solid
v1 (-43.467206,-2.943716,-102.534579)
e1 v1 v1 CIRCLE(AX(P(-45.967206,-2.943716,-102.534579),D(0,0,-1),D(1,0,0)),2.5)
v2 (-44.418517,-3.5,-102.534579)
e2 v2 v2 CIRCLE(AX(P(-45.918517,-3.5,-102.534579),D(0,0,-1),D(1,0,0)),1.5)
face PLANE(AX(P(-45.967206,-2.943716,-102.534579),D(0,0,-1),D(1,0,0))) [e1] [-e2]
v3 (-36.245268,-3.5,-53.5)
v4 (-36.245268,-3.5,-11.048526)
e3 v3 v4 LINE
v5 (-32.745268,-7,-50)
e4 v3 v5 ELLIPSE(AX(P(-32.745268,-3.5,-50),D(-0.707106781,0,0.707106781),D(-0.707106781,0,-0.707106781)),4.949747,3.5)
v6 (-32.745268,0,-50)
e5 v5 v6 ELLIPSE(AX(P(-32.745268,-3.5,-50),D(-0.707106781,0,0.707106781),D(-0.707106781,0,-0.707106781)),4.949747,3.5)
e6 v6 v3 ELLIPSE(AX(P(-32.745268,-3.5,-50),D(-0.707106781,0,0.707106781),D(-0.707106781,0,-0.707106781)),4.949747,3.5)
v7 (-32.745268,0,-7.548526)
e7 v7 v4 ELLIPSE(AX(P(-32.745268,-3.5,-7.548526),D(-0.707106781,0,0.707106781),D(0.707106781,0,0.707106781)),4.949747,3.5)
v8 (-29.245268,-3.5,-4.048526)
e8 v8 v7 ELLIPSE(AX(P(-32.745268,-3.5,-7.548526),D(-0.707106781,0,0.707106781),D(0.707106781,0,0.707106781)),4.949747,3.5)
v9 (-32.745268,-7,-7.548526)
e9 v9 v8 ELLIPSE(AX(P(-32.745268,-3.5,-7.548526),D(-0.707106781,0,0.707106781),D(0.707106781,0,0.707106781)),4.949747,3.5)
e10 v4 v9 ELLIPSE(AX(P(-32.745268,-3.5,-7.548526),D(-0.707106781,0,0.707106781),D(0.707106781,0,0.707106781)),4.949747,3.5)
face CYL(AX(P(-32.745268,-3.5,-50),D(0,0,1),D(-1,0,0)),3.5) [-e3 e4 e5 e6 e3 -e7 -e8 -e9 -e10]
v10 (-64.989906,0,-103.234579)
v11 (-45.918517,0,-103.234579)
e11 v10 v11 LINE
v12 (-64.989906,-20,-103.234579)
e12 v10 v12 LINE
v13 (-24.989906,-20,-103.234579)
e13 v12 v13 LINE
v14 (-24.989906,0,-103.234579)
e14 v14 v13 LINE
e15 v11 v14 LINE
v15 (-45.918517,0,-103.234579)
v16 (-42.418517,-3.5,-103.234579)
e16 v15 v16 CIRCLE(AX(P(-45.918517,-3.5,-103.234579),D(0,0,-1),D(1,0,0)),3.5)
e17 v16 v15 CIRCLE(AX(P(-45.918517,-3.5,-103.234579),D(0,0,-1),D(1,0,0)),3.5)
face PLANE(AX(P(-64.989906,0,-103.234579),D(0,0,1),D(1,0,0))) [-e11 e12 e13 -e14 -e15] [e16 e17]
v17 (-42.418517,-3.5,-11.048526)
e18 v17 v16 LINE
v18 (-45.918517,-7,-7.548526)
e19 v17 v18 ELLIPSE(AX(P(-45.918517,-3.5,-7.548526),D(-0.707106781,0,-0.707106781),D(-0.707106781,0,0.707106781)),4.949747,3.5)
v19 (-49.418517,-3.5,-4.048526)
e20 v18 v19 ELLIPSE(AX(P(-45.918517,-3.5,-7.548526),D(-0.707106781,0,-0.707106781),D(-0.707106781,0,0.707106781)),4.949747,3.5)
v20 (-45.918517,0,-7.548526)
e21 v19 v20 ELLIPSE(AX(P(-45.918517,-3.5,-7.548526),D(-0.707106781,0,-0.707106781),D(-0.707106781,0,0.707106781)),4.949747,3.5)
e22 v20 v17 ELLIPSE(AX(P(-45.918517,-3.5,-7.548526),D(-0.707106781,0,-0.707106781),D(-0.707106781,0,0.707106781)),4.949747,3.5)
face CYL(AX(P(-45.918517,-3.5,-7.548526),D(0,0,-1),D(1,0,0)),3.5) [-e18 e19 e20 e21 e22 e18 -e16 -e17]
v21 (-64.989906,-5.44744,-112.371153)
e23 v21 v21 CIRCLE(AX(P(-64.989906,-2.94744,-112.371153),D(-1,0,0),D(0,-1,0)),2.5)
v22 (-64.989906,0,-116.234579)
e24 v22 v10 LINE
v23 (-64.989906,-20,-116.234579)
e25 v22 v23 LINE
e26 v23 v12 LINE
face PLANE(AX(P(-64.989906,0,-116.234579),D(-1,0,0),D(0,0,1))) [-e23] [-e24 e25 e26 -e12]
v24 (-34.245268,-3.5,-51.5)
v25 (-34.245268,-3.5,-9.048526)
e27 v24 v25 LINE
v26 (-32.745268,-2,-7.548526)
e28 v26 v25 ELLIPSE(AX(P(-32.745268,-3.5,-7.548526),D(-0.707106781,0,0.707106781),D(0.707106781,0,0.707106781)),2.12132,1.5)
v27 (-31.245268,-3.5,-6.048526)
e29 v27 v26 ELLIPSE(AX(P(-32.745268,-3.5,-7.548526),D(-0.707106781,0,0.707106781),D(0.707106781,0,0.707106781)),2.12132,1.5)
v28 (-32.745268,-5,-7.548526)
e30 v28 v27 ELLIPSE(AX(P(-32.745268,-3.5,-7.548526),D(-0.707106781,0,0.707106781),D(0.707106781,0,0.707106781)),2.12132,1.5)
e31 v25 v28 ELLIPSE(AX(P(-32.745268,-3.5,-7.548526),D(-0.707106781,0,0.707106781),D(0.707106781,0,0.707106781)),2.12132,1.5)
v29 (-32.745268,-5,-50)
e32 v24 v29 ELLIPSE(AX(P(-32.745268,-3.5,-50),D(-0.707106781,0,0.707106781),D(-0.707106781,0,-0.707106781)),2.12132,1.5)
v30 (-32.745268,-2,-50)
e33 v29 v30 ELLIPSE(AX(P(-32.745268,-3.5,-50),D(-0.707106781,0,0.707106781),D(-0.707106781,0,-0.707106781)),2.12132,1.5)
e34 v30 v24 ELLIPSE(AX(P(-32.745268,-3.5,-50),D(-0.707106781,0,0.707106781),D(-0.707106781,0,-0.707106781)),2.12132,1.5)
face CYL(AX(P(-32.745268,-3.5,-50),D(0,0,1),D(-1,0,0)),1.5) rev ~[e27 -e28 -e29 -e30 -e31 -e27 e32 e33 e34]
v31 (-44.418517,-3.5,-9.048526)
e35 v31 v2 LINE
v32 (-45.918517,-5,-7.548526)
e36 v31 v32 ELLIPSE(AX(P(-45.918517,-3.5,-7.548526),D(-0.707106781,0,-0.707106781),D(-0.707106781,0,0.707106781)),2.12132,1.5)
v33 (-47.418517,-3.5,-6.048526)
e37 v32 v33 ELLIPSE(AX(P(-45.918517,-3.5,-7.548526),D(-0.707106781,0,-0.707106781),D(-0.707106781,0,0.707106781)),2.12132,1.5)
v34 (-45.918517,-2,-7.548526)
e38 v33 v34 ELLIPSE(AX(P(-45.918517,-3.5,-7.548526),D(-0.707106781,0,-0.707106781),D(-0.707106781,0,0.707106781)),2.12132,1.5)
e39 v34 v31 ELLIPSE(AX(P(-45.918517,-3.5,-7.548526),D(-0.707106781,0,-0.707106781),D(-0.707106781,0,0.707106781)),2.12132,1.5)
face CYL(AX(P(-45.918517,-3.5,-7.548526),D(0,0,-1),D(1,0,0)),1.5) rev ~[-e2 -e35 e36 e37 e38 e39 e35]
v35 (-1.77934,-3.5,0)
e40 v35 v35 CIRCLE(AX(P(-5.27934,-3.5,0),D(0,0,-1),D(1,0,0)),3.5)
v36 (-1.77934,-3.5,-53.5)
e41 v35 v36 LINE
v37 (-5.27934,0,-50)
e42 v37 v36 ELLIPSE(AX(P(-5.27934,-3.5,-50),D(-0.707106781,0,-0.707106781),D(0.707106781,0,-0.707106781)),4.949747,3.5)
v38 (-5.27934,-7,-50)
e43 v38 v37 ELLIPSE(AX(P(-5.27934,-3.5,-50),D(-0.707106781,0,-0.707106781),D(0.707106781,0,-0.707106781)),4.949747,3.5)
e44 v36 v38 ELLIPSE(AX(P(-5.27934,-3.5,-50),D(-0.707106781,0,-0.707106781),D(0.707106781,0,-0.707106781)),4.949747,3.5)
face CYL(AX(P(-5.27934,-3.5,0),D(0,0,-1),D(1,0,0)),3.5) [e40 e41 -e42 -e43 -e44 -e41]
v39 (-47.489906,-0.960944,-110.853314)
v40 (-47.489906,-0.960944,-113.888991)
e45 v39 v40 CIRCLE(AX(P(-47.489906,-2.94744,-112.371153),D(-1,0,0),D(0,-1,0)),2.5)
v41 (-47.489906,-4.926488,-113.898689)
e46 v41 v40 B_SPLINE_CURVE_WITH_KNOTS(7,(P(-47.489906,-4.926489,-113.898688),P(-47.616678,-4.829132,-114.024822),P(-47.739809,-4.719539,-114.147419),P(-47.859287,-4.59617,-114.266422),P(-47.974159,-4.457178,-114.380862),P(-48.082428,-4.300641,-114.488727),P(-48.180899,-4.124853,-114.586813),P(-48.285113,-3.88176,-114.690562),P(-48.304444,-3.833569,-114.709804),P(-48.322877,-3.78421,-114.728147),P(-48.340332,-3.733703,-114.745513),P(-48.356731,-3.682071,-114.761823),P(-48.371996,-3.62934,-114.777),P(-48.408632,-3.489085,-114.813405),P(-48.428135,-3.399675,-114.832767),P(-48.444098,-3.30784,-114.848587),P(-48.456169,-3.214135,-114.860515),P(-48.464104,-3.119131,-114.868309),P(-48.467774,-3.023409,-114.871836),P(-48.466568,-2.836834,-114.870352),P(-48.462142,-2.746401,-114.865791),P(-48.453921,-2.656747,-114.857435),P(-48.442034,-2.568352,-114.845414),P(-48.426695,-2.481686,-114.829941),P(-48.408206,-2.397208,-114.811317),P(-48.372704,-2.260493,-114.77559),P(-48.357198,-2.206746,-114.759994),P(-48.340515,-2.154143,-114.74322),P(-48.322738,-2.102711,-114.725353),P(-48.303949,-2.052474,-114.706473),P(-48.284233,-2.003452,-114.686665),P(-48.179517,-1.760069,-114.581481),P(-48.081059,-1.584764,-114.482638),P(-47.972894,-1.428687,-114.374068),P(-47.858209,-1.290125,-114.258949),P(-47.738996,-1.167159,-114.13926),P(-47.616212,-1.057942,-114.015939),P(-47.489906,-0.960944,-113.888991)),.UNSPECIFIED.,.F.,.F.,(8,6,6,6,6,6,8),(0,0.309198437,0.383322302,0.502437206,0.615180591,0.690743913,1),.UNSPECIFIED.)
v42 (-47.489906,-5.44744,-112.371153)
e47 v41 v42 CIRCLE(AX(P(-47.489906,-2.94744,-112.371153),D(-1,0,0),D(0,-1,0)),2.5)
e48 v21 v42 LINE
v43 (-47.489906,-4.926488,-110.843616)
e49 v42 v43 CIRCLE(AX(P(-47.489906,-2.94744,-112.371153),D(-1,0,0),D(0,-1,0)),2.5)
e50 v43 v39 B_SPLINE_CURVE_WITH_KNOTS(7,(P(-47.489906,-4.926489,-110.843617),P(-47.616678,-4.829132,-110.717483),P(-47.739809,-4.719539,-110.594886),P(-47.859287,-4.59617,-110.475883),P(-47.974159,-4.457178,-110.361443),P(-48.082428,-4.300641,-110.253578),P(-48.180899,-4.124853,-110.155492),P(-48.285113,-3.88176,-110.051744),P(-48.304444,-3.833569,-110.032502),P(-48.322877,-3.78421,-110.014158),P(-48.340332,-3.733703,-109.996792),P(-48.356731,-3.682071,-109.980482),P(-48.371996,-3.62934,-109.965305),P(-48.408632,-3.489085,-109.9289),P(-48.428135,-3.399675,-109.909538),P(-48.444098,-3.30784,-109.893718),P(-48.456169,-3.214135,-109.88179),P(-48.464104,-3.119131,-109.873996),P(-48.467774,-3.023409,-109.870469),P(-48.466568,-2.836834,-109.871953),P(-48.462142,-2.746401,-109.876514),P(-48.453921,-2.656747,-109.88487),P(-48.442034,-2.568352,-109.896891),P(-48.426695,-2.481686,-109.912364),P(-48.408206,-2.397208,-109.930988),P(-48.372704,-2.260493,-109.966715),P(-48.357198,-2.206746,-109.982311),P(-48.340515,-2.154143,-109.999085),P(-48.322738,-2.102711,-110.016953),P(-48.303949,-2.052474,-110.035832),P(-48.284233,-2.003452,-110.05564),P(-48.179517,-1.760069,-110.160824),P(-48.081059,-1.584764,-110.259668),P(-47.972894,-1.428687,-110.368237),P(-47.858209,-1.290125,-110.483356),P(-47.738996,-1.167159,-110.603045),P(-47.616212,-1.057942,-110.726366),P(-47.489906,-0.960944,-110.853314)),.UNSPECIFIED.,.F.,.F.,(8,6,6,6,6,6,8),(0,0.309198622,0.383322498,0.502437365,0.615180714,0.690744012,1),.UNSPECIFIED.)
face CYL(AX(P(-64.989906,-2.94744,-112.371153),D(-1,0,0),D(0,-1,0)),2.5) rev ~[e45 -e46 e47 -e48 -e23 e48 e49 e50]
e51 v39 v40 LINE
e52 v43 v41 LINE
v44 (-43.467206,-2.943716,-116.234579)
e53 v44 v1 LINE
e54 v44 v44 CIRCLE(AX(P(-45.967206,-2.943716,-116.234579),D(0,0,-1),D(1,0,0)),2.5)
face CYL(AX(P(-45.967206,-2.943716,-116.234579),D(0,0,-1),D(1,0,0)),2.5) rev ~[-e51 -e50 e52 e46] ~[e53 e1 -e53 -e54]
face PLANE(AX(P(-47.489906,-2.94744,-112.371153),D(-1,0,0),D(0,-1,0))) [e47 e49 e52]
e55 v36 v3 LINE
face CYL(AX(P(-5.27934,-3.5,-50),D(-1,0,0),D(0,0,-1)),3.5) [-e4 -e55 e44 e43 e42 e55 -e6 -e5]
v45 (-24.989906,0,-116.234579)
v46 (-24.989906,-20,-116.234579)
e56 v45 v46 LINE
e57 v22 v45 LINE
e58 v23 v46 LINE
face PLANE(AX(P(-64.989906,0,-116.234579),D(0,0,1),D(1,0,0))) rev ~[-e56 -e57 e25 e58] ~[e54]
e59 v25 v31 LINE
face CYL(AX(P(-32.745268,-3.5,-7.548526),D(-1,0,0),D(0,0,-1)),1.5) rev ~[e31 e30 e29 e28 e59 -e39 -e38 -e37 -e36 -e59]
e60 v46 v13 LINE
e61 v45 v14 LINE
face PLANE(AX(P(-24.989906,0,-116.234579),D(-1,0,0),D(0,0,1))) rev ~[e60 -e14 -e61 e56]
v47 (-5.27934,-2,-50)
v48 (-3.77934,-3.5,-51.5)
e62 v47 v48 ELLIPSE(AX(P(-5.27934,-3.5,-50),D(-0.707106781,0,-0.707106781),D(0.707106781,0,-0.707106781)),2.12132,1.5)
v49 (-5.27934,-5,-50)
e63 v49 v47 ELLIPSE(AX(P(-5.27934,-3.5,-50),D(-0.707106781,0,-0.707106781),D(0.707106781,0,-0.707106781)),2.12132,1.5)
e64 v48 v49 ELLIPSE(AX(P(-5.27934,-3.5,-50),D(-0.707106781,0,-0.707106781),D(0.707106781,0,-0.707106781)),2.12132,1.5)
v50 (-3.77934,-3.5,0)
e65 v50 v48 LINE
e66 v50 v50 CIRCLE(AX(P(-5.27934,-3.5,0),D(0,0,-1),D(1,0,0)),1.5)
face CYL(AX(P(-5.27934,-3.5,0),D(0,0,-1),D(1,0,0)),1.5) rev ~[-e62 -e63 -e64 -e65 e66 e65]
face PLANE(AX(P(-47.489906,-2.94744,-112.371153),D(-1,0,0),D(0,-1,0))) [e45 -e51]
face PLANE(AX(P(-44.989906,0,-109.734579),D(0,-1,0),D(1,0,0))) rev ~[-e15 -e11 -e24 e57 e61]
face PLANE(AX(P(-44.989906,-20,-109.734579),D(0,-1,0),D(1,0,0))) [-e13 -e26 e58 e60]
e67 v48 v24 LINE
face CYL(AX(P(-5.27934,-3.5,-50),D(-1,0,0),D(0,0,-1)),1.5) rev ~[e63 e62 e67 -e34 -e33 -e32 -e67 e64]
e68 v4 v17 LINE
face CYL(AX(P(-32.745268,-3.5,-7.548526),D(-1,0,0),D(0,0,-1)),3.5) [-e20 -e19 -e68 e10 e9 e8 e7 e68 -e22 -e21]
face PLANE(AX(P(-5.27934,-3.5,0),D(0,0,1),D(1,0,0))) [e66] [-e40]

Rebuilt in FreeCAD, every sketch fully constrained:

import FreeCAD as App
import Part
import Sketcher
from FreeCAD import Vector
Q = App.Units.Quantity

doc = App.newDocument("Part")
body = doc.addObject("PartDesign::Body", "Body")

# Sketch on XY plane
sketch1 = body.newObject("Sketcher::SketchObject", "Sketch")
sketch1.AttachmentSupport = (doc.getObject("XY_Plane"), [""])
sketch1.MapMode = "FlatFace"
sketch1.addGeometry(Part.Circle(Vector(-5.3, -3.5, 0), Vector(0, 0, 1), 3.5), False)
sketch1.addGeometry(Part.Circle(Vector(-5.3, -3.5, 0), Vector(0, 0, 1), 1.5), False)
sketch1.addConstraint(Sketcher.Constraint("Coincident", 1, 3, 0, 3))
sketch1.addConstraint(Sketcher.Constraint("Diameter", 0, Q("7 mm")))
sketch1.addConstraint(Sketcher.Constraint("Diameter", 1, Q("3 mm")))
sketch1.addConstraint(Sketcher.Constraint("DistanceY", 0, 3, -1, 1, Q("3.5 mm")))
sketch1.addConstraint(Sketcher.Constraint("DistanceX", 0, 3, -1, 1, Q("5.27934 mm")))

# Sketch on XZ plane
sketch2 = body.newObject("Sketcher::SketchObject", "Sketch001")
sketch2.AttachmentSupport = (doc.getObject("XZ_Plane"), [""])
sketch2.MapMode = "FlatFace"
sketch2.addGeometry(Part.LineSegment(Vector(-5, 0, 0), Vector(-5, -50, 0)), False)
sketch2.addGeometry(Part.LineSegment(Vector(-5, -50, 0), Vector(-33, -50, 0)), False)
sketch2.addGeometry(Part.LineSegment(Vector(-33, -50, 0), Vector(-33, -8, 0)), False)
sketch2.addGeometry(Part.LineSegment(Vector(-33, -8, 0), Vector(-46, -8, 0)), False)
sketch2.addGeometry(Part.LineSegment(Vector(-46, -8, 0), Vector(-46, -111, 0)), False)
sketch2.addConstraint(Sketcher.Constraint("Coincident", 0, 2, 1, 1))
sketch2.addConstraint(Sketcher.Constraint("Coincident", 1, 2, 2, 1))
sketch2.addConstraint(Sketcher.Constraint("Coincident", 2, 2, 3, 1))
sketch2.addConstraint(Sketcher.Constraint("Coincident", 3, 2, 4, 1))
sketch2.addConstraint(Sketcher.Constraint("Vertical", 0))
sketch2.addConstraint(Sketcher.Constraint("Horizontal", 1))
sketch2.addConstraint(Sketcher.Constraint("Vertical", 2))
sketch2.addConstraint(Sketcher.Constraint("Horizontal", 3))
sketch2.addConstraint(Sketcher.Constraint("Vertical", 4))
sketch2.addConstraint(Sketcher.Constraint("PointOnObject", 0, 1, -1))
sketch2.addConstraint(Sketcher.Constraint("DistanceY", 0, 2, 0, 1, Q("50 mm")))
sketch2.addConstraint(Sketcher.Constraint("DistanceX", 1, 2, 1, 1, Q("27.465928 mm")))
sketch2.addConstraint(Sketcher.Constraint("DistanceX", 3, 2, 3, 1, Q("13.173249 mm")))
sketch2.addConstraint(Sketcher.Constraint("DistanceY", 4, 2, 4, 1, Q("103.88051 mm")))
sketch2.addConstraint(Sketcher.Constraint("DistanceY", 2, 1, 2, 2, Q("42.451474 mm")))
sketch2.addConstraint(Sketcher.Constraint("DistanceX", 0, 1, -1, 1, Q("5.27934 mm")))
doc.recompute()

additivepipe = body.newObject("PartDesign::AdditivePipe", "AdditivePipe")
additivepipe.Profile = sketch1
additivepipe.Spine = (sketch2, ["Edge1", "Edge2", "Edge3", "Edge4", "Edge5"])
additivepipe.Transition = "Right corner"

# Sketch on XZ plane
sketch3 = body.newObject("Sketcher::SketchObject", "Sketch002")
sketch3.AttachmentSupport = (doc.getObject("XZ_Plane"), [""])
sketch3.MapMode = "FlatFace"
sketch3.addGeometry(Part.LineSegment(Vector(-65, -103, 0), Vector(-65, -116, 0)), False)
sketch3.addGeometry(Part.LineSegment(Vector(-65, -116, 0), Vector(-25, -116, 0)), False)
sketch3.addGeometry(Part.LineSegment(Vector(-25, -116, 0), Vector(-25, -103, 0)), False)
sketch3.addGeometry(Part.LineSegment(Vector(-25, -103, 0), Vector(-65, -103, 0)), False)
sketch3.addConstraint(Sketcher.Constraint("Coincident", 0, 2, 1, 1))
sketch3.addConstraint(Sketcher.Constraint("Coincident", 1, 2, 2, 1))
sketch3.addConstraint(Sketcher.Constraint("Coincident", 2, 2, 3, 1))
sketch3.addConstraint(Sketcher.Constraint("Coincident", 3, 2, 0, 1))
sketch3.addConstraint(Sketcher.Constraint("Vertical", 0))
sketch3.addConstraint(Sketcher.Constraint("Horizontal", 1))
sketch3.addConstraint(Sketcher.Constraint("Vertical", 2))
sketch3.addConstraint(Sketcher.Constraint("Horizontal", 3))
sketch3.addConstraint(Sketcher.Constraint("DistanceX", 1, 1, 1, 2, Q("40 mm")))
sketch3.addConstraint(Sketcher.Constraint("DistanceY", 0, 2, 0, 1, Q("13 mm")))
sketch3.addConstraint(Sketcher.Constraint("DistanceY", 0, 2, -1, 1, Q("116.234579 mm")))
sketch3.addConstraint(Sketcher.Constraint("DistanceX", 0, 2, -1, 1, Q("64.989906 mm")))
pad1 = body.newObject("PartDesign::Pad", "Pad")
pad1.Profile = sketch3
pad1.Length = 20

# Sketch on YZ plane
sketch4 = body.newObject("Sketcher::SketchObject", "Sketch003")
sketch4.AttachmentSupport = (doc.getObject("YZ_Plane"), [""])
sketch4.MapMode = "FlatFace"
sketch4.AttachmentOffset = App.Placement(Vector(0, 0, -64.989906), App.Rotation())
sketch4.addGeometry(Part.Circle(Vector(-2.9, -112.4, 0), Vector(0, 0, 1), 2.5), False)
sketch4.addConstraint(Sketcher.Constraint("Diameter", 0, Q("5 mm")))
sketch4.addConstraint(Sketcher.Constraint("DistanceX", 0, 3, -1, 1, Q("2.94744 mm")))
sketch4.addConstraint(Sketcher.Constraint("DistanceY", 0, 3, -1, 1, Q("112.371153 mm")))
pocket1 = body.newObject("PartDesign::Pocket", "Pocket")
pocket1.Profile = sketch4
pocket1.Length = 17.5
pocket1.Reversed = True

# Sketch on XY plane
sketch5 = body.newObject("Sketcher::SketchObject", "Sketch004")
sketch5.AttachmentSupport = (doc.getObject("XY_Plane"), [""])
sketch5.MapMode = "FlatFace"
sketch5.AttachmentOffset = App.Placement(Vector(0, 0, -116.234579), App.Rotation())
sketch5.addGeometry(Part.Circle(Vector(-46, -2.9, 0), Vector(0, 0, 1), 2.5), False)
sketch5.addConstraint(Sketcher.Constraint("Diameter", 0, Q("5 mm")))
sketch5.addConstraint(Sketcher.Constraint("DistanceX", 0, 3, -1, 1, Q("45.967206 mm")))
sketch5.addConstraint(Sketcher.Constraint("DistanceY", 0, 3, -1, 1, Q("2.943716 mm")))
pocket2 = body.newObject("PartDesign::Pocket", "Pocket001")
pocket2.Profile = sketch5
pocket2.Length = 13.7
pocket2.Reversed = True

doc.recompute()
